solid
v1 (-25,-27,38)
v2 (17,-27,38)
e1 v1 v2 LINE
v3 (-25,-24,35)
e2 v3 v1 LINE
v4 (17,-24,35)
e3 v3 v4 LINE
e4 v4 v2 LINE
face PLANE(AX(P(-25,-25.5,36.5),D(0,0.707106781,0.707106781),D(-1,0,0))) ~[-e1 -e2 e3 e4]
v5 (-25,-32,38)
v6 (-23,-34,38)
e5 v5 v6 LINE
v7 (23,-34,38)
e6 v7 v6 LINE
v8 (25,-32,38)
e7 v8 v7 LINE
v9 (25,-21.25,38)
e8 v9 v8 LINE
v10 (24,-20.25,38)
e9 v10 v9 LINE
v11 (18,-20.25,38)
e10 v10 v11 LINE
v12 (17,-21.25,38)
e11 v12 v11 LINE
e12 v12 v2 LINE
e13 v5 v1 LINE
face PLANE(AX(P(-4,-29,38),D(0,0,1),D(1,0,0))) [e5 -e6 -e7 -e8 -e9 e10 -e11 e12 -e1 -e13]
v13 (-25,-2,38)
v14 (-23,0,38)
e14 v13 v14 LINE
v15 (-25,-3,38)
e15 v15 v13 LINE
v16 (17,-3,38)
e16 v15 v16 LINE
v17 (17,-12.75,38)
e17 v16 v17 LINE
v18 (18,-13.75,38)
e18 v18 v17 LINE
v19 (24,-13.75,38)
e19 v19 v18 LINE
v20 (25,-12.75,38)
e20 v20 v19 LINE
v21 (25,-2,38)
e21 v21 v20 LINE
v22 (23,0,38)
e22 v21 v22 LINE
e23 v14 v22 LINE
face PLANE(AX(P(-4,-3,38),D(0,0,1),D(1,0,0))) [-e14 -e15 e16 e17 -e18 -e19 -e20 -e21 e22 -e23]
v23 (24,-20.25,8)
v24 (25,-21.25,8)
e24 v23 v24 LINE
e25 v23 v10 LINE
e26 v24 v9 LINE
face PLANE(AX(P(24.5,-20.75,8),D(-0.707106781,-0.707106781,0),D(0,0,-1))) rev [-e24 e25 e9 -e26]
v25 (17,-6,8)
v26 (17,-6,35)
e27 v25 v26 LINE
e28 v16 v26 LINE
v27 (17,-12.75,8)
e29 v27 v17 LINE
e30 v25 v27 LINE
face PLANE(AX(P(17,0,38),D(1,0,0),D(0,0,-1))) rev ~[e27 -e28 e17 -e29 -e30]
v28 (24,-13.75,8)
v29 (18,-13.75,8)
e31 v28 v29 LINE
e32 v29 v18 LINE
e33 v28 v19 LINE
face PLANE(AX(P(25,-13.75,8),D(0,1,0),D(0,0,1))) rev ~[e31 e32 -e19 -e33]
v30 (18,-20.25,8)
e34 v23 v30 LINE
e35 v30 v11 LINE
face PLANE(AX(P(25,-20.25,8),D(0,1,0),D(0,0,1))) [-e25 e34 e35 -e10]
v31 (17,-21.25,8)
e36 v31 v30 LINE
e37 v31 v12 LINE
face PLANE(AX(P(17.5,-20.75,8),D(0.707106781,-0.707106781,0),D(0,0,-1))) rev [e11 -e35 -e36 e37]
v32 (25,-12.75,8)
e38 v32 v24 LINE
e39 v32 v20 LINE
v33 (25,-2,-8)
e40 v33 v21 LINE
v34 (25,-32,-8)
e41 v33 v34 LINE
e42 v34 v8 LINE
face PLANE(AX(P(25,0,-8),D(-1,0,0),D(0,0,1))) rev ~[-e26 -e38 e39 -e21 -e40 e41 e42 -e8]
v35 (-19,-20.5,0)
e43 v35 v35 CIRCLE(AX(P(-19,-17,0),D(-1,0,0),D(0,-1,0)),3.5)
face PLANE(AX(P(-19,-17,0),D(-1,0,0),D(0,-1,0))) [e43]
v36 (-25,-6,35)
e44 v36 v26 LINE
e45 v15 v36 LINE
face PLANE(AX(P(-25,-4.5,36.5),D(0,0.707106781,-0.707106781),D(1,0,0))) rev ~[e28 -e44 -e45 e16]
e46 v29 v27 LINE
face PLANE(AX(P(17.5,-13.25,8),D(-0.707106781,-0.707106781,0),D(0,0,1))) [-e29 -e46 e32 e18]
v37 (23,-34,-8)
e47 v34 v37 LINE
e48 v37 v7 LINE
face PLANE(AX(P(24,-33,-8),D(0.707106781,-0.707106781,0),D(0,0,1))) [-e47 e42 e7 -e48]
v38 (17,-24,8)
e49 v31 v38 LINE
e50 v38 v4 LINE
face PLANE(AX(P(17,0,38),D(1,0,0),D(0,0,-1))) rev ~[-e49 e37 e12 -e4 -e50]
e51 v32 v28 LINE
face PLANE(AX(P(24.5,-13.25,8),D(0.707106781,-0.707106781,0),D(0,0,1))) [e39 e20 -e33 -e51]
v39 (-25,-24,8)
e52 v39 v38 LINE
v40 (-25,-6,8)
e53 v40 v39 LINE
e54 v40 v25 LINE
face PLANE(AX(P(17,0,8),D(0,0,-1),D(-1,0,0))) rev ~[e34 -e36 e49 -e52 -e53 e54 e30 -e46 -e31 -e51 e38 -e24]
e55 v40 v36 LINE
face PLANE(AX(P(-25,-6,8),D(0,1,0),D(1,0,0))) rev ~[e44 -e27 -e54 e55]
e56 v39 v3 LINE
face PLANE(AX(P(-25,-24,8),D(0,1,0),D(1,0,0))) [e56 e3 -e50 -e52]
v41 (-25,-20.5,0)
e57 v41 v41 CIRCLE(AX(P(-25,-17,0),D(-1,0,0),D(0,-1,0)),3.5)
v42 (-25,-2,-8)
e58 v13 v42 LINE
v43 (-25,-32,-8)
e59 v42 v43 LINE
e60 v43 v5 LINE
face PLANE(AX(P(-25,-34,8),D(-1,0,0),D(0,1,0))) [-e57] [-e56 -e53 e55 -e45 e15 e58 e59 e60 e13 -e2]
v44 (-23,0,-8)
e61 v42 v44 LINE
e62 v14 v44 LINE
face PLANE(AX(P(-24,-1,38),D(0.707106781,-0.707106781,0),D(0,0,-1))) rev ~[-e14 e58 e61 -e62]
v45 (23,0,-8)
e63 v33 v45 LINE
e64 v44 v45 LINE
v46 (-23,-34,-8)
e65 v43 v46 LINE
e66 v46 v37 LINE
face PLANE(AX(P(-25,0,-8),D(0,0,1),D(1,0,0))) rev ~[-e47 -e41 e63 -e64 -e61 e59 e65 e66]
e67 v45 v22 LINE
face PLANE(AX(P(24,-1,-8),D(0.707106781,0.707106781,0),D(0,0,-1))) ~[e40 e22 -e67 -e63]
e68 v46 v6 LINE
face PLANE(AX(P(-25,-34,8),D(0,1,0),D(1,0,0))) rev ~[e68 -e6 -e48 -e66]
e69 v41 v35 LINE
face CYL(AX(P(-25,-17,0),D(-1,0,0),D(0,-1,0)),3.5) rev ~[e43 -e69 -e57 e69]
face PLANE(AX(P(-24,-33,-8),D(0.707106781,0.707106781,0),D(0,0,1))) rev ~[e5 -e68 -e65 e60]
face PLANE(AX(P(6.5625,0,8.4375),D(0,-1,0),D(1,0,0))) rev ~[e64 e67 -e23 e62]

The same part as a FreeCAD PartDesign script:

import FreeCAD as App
import Part
import Sketcher
from FreeCAD import Vector
Q = App.Units.Quantity


def edges_at(feature, points):
    """Names of the edges that pass closest to the given points."""
    edges = feature.Shape.Edges
    near = lambda p: min(range(len(edges)), key=lambda i: edges[i].distToShape(Part.Vertex(*p))[0])
    return sorted({f"Edge{near(p) + 1}" for p in points})


def add_polygon(sketch, points):
    """Adds a closed chain of lines whose ends are joined by coincident constraints."""
    first, n = sketch.GeometryCount, len(points)
    for a, b in zip(points, points[1:] + points[:1]):
        sketch.addGeometry(Part.LineSegment(App.Vector(*a, 0), App.Vector(*b, 0)), False)
    for i in range(n):
        sketch.addConstraint(Sketcher.Constraint("Coincident", first + i, 2, first + (i + 1) % n, 1))

doc = App.newDocument("Part")
params = doc.addObject("Spreadsheet::Sheet", "Params")
for row, (alias, value) in enumerate([
    ("sketch1_width", "50 mm"),
    ("sketch1_width2", "8 mm"),
    ("sketch1_height", "16 mm"),
    ("sketch1_height2", "46 mm"),
    ("pad1_length", "34 mm"),
    ("sketch2_height", "30 mm"),
    ("sketch2_width", "6.5 mm"),
    ("sketch3_diameter", "7 mm"),
    ("pocket2_length", "6 mm"),
    ("sketch4_width", "42 mm"),
    ("sketch4_height", "10 mm"),
    ("sketch4_height2", "6 mm"),
    ("pad2_length", "30 mm"),
    ("chamfer_size", "3 mm"),
    ("chamfer2_size", "2 mm"),
    ("chamfer3_size", "1 mm"),
], start=1):
    params.set(f"A{row}", alias)
    params.set(f"B{row}", "=" + value)
    params.setAlias(f"B{row}", alias)

body = doc.addObject("PartDesign::Body", "Body")

sketch1 = body.newObject("Sketcher::SketchObject", "Sketch")
sketch1.AttachmentSupport = (doc.getObject("XZ_Plane"), [""])
sketch1.MapMode = "FlatFace"
add_polygon(sketch1, [(-25, 8), (-25, -8), (25, -8), (25, 38), (17, 38), (17, 8)])
sketch1.addConstraint([
    Sketcher.Constraint("Vertical", 0),
    Sketcher.Constraint("Horizontal", 1),
    Sketcher.Constraint("Vertical", 2),
    Sketcher.Constraint("Horizontal", 3),
    Sketcher.Constraint("Vertical", 4),
    Sketcher.Constraint("Horizontal", 5),
    Sketcher.Constraint("Symmetric", 1, 2, 5, 2, -1, 1),
    Sketcher.Constraint("DistanceX", 1, 1, 1, 2, Q("50 mm")),
    Sketcher.Constraint("DistanceX", 3, 2, 3, 1, Q("8 mm")),
    Sketcher.Constraint("DistanceY", 0, 2, 0, 1, Q("16 mm")),
    Sketcher.Constraint("DistanceY", 2, 1, 2, 2, Q("46 mm")),
])
sketch1.setExpression("Constraints[13]", "Params.sketch1_width")
sketch1.setExpression("Constraints[14]", "Params.sketch1_width2")
sketch1.setExpression("Constraints[15]", "Params.sketch1_height")
sketch1.setExpression("Constraints[16]", "Params.sketch1_height2")
pad1 = body.newObject("PartDesign::Pad", "Pad")
pad1.Profile = sketch1
pad1.setExpression("Length", "Params.pad1_length")

sketch2 = body.newObject("Sketcher::SketchObject", "Sketch001")
sketch2.AttachmentSupport = (doc.getObject("YZ_Plane"), [""])
sketch2.MapMode = "FlatFace"
sketch2.AttachmentOffset = App.Placement(Vector(0, 0, 25), App.Rotation())
add_polygon(sketch2, [(-20.25, 38), (-20.25, 8), (-13.75, 8), (-13.75, 38)])
sketch2.addConstraint([
    Sketcher.Constraint("Vertical", 0),
    Sketcher.Constraint("Horizontal", 1),
    Sketcher.Constraint("Vertical", 2),
    Sketcher.Constraint("Horizontal", 3),
    Sketcher.Constraint("DistanceY", 0, 2, 0, 1, Q("30 mm")),
    Sketcher.Constraint("DistanceX", 1, 1, 1, 2, Q("6.5 mm")),
    Sketcher.Constraint("DistanceY", -1, 1, 0, 2, Q("8 mm")),
    Sketcher.Constraint("DistanceX", 0, 2, -1, 1, Q("20.25 mm")),
])
sketch2.setExpression("Constraints[8]", "Params.sketch2_height")
sketch2.setExpression("Constraints[9]", "Params.sketch2_width")
pocket1 = body.newObject("PartDesign::Pocket", "Pocket")
pocket1.Profile = sketch2
pocket1.Type = "ThroughAll"

sketch3 = body.newObject("Sketcher::SketchObject", "Sketch002")
sketch3.AttachmentSupport = (doc.getObject("YZ_Plane"), [""])
sketch3.MapMode = "FlatFace"
sketch3.AttachmentOffset = App.Placement(Vector(0, 0, -25), App.Rotation())
sketch3.addGeometry(Part.Circle(Vector(-17, 0, 0), Vector(0, 0, 1), 3.5), False)
sketch3.addConstraint([
    Sketcher.Constraint("PointOnObject", 0, 3, -1),
    Sketcher.Constraint("Diameter", 0, Q("7 mm")),
    Sketcher.Constraint("DistanceX", 0, 3, -1, 1, Q("17 mm")),
])
sketch3.setExpression("Constraints[1]", "Params.sketch3_diameter")
pocket2 = body.newObject("PartDesign::Pocket", "Pocket001")
pocket2.Profile = sketch3
pocket2.setExpression("Length", "Params.pocket2_length")
pocket2.Reversed = True

sketch4 = body.newObject("Sketcher::SketchObject", "Sketch003")
sketch4.AttachmentSupport = (doc.getObject("XY_Plane"), [""])
sketch4.MapMode = "FlatFace"
sketch4.AttachmentOffset = App.Placement(Vector(0, 0, 8), App.Rotation())
add_polygon(sketch4, [(-25, -24), (-25, -34), (17, -34), (17, -24)])
add_polygon(sketch4, [(-25, 0), (-25, -6), (17, -6), (17, 0)])
sketch4.addConstraint([
    Sketcher.Constraint("Vertical", 0),
    Sketcher.Constraint("Horizontal", 1),
    Sketcher.Constraint("Vertical", 2),
    Sketcher.Constraint("Horizontal", 3),
    Sketcher.Constraint("Vertical", 4),
    Sketcher.Constraint("Horizontal", 5),
    Sketcher.Constraint("Vertical", 6),
    Sketcher.Constraint("Horizontal", 7),
    Sketcher.Constraint("PointOnObject", 6, 2, -1),
    Sketcher.Constraint("Vertical", 3, 2, 4, 2),
    Sketcher.Constraint("Vertical", 2, 2, 5, 2),
    Sketcher.Constraint("DistanceX", 1, 1, 1, 2, Q("42 mm")),
    Sketcher.Constraint("DistanceY", 0, 2, 0, 1, Q("10 mm")),
    Sketcher.Constraint("DistanceY", 4, 2, 4, 1, Q("6 mm")),
    Sketcher.Constraint("DistanceX", 0, 2, -1, 1, Q("25 mm")),
    Sketcher.Constraint("DistanceY", 0, 2, -1, 1, Q("34 mm")),
])
sketch4.setExpression("Constraints[19]", "Params.sketch4_width")
sketch4.setExpression("Constraints[20]", "Params.sketch4_height")
sketch4.setExpression("Constraints[21]", "Params.sketch4_height2")
pad2 = body.newObject("PartDesign::Pad", "Pad001")
pad2.Profile = sketch4
pad2.setExpression("Length", "Params.pad2_length")
doc.recompute()

chamfer = body.newObject("PartDesign::Chamfer", "Chamfer")
chamfer.Base = (pad2, edges_at(pad2, [(-4, -24, 38), (-4, -6, 38)]))
chamfer.setExpression("Size", "Params.chamfer_size")
doc.recompute()

chamfer2 = body.newObject("PartDesign::Chamfer", "Chamfer001")
chamfer2.Base = (chamfer, edges_at(chamfer, [
    (25, -34, 15),
    (25, 0, 15),
    (-25, -34, 15),
    (-25, 0, 15),
]))
chamfer2.setExpression("Size", "Params.chamfer2_size")
doc.recompute()

chamfer3 = body.newObject("PartDesign::Chamfer", "Chamfer002")
chamfer3.Base = (chamfer2, edges_at(chamfer2, [
    (17, -13.75, 23),
    (17, -20.25, 23),
    (25, -13.75, 23),
    (25, -20.25, 23),
]))
chamfer3.setExpression("Size", "Params.chamfer3_size")

doc.recompute()
